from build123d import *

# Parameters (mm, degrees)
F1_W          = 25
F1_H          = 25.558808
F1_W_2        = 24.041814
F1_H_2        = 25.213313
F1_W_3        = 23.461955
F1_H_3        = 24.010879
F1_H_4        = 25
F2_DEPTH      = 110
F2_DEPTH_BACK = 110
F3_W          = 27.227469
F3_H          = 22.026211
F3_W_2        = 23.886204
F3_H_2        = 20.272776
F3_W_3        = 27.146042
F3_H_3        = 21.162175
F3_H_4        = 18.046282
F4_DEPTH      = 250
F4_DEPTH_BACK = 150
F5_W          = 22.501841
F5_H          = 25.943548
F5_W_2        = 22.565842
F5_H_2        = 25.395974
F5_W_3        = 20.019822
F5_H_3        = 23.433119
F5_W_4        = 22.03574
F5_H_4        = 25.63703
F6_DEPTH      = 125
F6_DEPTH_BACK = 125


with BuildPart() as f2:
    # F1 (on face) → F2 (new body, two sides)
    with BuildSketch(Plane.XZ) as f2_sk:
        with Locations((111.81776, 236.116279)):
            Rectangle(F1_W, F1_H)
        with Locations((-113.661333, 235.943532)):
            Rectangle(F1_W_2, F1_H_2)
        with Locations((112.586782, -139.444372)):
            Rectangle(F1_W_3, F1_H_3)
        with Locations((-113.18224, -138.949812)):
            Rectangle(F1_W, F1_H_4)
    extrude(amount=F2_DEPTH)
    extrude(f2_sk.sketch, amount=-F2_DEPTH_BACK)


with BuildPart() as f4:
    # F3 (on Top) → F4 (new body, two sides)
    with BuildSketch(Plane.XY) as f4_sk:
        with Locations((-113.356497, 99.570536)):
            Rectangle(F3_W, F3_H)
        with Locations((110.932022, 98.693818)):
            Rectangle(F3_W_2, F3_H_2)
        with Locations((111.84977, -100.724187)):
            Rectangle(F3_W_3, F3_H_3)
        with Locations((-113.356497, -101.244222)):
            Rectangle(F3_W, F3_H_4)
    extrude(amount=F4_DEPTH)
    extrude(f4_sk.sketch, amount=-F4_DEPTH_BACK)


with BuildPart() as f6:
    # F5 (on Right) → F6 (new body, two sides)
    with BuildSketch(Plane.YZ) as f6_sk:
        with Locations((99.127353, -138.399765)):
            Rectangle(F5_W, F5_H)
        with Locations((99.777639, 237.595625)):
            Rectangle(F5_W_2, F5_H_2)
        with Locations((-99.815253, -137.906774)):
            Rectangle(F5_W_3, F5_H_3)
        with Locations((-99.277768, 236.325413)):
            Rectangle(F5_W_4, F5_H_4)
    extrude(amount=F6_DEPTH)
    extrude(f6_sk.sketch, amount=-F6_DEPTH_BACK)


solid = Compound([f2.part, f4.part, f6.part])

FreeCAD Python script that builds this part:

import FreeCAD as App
import Part
import Sketcher

V = App.Vector

doc = App.newDocument("Part")
body = doc.addObject("PartDesign::Body", "Body")
body.AllowCompound = True

# Sketch on XZ plane
sketch1 = body.newObject("Sketcher::SketchObject", "Sketch")
sketch1.AttachmentSupport = (doc.getObject("XZ_Plane"), [""])
sketch1.MapMode = "FlatFace"
sketch1.addGeometry(Part.LineSegment(V(99, 249, 0), V(99, 223, 0)), False)
sketch1.addGeometry(Part.LineSegment(V(99, 223, 0), V(124, 223, 0)), False)
sketch1.addGeometry(Part.LineSegment(V(124, 223, 0), V(124, 249, 0)), False)
sketch1.addGeometry(Part.LineSegment(V(124, 249, 0), V(99, 249, 0)), False)
sketch1.addGeometry(Part.LineSegment(V(-126, 249, 0), V(-126, 223, 0)), False)
sketch1.addGeometry(Part.LineSegment(V(-126, 223, 0), V(-102, 223, 0)), False)
sketch1.addGeometry(Part.LineSegment(V(-102, 223, 0), V(-102, 249, 0)), False)
sketch1.addGeometry(Part.LineSegment(V(-102, 249, 0), V(-126, 249, 0)), False)
sketch1.addGeometry(Part.LineSegment(V(101, -127, 0), V(101, -151, 0)), False)
sketch1.addGeometry(Part.LineSegment(V(101, -151, 0), V(124, -151, 0)), False)
sketch1.addGeometry(Part.LineSegment(V(124, -151, 0), V(124, -127, 0)), False)
sketch1.addGeometry(Part.LineSegment(V(124, -127, 0), V(101, -127, 0)), False)
sketch1.addGeometry(Part.LineSegment(V(-126, -126, 0), V(-126, -151, 0)), False)
sketch1.addGeometry(Part.LineSegment(V(-126, -151, 0), V(-101, -151, 0)), False)
sketch1.addGeometry(Part.LineSegment(V(-101, -151, 0), V(-101, -126, 0)), False)
sketch1.addGeometry(Part.LineSegment(V(-101, -126, 0), V(-126, -126, 0)), False)
sketch1.addConstraint(Sketcher.Constraint("Coincident", 0, 2, 1, 1))
sketch1.addConstraint(Sketcher.Constraint("Coincident", 1, 2, 2, 1))
sketch1.addConstraint(Sketcher.Constraint("Coincident", 2, 2, 3, 1))
sketch1.addConstraint(Sketcher.Constraint("Coincident", 3, 2, 0, 1))
sketch1.addConstraint(Sketcher.Constraint("Coincident", 4, 2, 5, 1))
sketch1.addConstraint(Sketcher.Constraint("Coincident", 5, 2, 6, 1))
sketch1.addConstraint(Sketcher.Constraint("Coincident", 6, 2, 7, 1))
sketch1.addConstraint(Sketcher.Constraint("Coincident", 7, 2, 4, 1))
sketch1.addConstraint(Sketcher.Constraint("Coincident", 8, 2, 9, 1))
sketch1.addConstraint(Sketcher.Constraint("Coincident", 9, 2, 10, 1))
sketch1.addConstraint(Sketcher.Constraint("Coincident", 10, 2, 11, 1))
sketch1.addConstraint(Sketcher.Constraint("Coincident", 11, 2, 8, 1))
sketch1.addConstraint(Sketcher.Constraint("Coincident", 12, 2, 13, 1))
sketch1.addConstraint(Sketcher.Constraint("Coincident", 13, 2, 14, 1))
sketch1.addConstraint(Sketcher.Constraint("Coincident", 14, 2, 15, 1))
sketch1.addConstraint(Sketcher.Constraint("Coincident", 15, 2, 12, 1))
sketch1.addConstraint(Sketcher.Constraint("Vertical", 0))
sketch1.addConstraint(Sketcher.Constraint("Horizontal", 1))
sketch1.addConstraint(Sketcher.Constraint("Vertical", 2))
sketch1.addConstraint(Sketcher.Constraint("Horizontal", 3))
sketch1.addConstraint(Sketcher.Constraint("Vertical", 4))
sketch1.addConstraint(Sketcher.Constraint("Horizontal", 5))
sketch1.addConstraint(Sketcher.Constraint("Vertical", 6))
sketch1.addConstraint(Sketcher.Constraint("Horizontal", 7))
sketch1.addConstraint(Sketcher.Constraint("Vertical", 8))
sketch1.addConstraint(Sketcher.Constraint("Horizontal", 9))
sketch1.addConstraint(Sketcher.Constraint("Vertical", 10))
sketch1.addConstraint(Sketcher.Constraint("Horizontal", 11))
sketch1.addConstraint(Sketcher.Constraint("Vertical", 12))
sketch1.addConstraint(Sketcher.Constraint("Horizontal", 13))
sketch1.addConstraint(Sketcher.Constraint("Vertical", 14))
sketch1.addConstraint(Sketcher.Constraint("Horizontal", 15))
sketch1.addConstraint(Sketcher.Constraint("Horizontal", 1, 2, 4, 2))
sketch1.addConstraint(Sketcher.Constraint("Horizontal", 9, 2, 12, 2))
sketch1.addConstraint(Sketcher.Constraint("Vertical", 2, 2, 9, 2))
sketch1.addConstraint(Sketcher.Constraint("Vertical", 7, 2, 12, 2))
sketch1.addConstraint(Sketcher.Constraint("Equal", 3, 13))
sketch1.addConstraint(Sketcher.Constraint("Equal", 15, 12))
sketch1.addConstraint(Sketcher.Constraint("DistanceX", 1, 1, 1, 2, 25.0))
sketch1.addConstraint(Sketcher.Constraint("DistanceX", 4, 2, 0, 2, 225.0))
sketch1.addConstraint(Sketcher.Constraint("DistanceY", 8, 2, 8, 1, 24.010879))
sketch1.addConstraint(Sketcher.Constraint("DistanceX", 5, 1, 5, 2, 24.041814))
sketch1.addConstraint(Sketcher.Constraint("DistanceX", 9, 1, 9, 2, 23.461955))
sketch1.addConstraint(Sketcher.Constraint("DistanceY", 0, 2, 0, 1, 25.558808))
sketch1.addConstraint(Sketcher.Constraint("DistanceY", 4, 2, 4, 1, 25.213313))
sketch1.addConstraint(Sketcher.Constraint("DistanceX", -1, 1, 0, 2, 99.31776))
sketch1.addConstraint(Sketcher.Constraint("DistanceY", -1, 1, 6, 2, 248.550188))
sketch1.addConstraint(Sketcher.Constraint("DistanceY", 8, 2, -1, 1, 151.449812))
pad1 = body.newObject("PartDesign::Pad", "Pad")
pad1.Profile = sketch1
pad1.Type = "TwoLengths"
pad1.Length = 110
pad1.Length2 = 110
body2 = doc.addObject("PartDesign::Body", "Body001")
body2.AllowCompound = True

# Sketch on XY plane
sketch2 = body2.newObject("Sketcher::SketchObject", "Sketch001")
sketch2.AttachmentSupport = (doc.getObject("XY_Plane001"), [""])
sketch2.MapMode = "FlatFace"
sketch2.addGeometry(Part.LineSegment(V(-127, 111, 0), V(-127, 89, 0)), False)
sketch2.addGeometry(Part.LineSegment(V(-127, 89, 0), V(-100, 89, 0)), False)
sketch2.addGeometry(Part.LineSegment(V(-100, 89, 0), V(-100, 111, 0)), False)
sketch2.addGeometry(Part.LineSegment(V(-100, 111, 0), V(-127, 111, 0)), False)
sketch2.addGeometry(Part.LineSegment(V(99, 109, 0), V(99, 89, 0)), False)
sketch2.addGeometry(Part.LineSegment(V(99, 89, 0), V(123, 89, 0)), False)
sketch2.addGeometry(Part.LineSegment(V(123, 89, 0), V(123, 109, 0)), False)
sketch2.addGeometry(Part.LineSegment(V(123, 109, 0), V(99, 109, 0)), False)
sketch2.addGeometry(Part.LineSegment(V(98, -90, 0), V(98, -111, 0)), False)
sketch2.addGeometry(Part.LineSegment(V(98, -111, 0), V(125, -111, 0)), False)
sketch2.addGeometry(Part.LineSegment(V(125, -111, 0), V(125, -90, 0)), False)
sketch2.addGeometry(Part.LineSegment(V(125, -90, 0), V(98, -90, 0)), False)
sketch2.addGeometry(Part.LineSegment(V(-127, -92, 0), V(-127, -110, 0)), False)
sketch2.addGeometry(Part.LineSegment(V(-127, -110, 0), V(-100, -110, 0)), False)
sketch2.addGeometry(Part.LineSegment(V(-100, -110, 0), V(-100, -92, 0)), False)
sketch2.addGeometry(Part.LineSegment(V(-100, -92, 0), V(-127, -92, 0)), False)
sketch2.addConstraint(Sketcher.Constraint("Coincident", 0, 2, 1, 1))
sketch2.addConstraint(Sketcher.Constraint("Coincident", 1, 2, 2, 1))
sketch2.addConstraint(Sketcher.Constraint("Coincident", 2, 2, 3, 1))
sketch2.addConstraint(Sketcher.Constraint("Coincident", 3, 2, 0, 1))
sketch2.addConstraint(Sketcher.Constraint("Coincident", 4, 2, 5, 1))
sketch2.addConstraint(Sketcher.Constraint("Coincident", 5, 2, 6, 1))
sketch2.addConstraint(Sketcher.Constraint("Coincident", 6, 2, 7, 1))
sketch2.addConstraint(Sketcher.Constraint("Coincident", 7, 2, 4, 1))
sketch2.addConstraint(Sketcher.Constraint("Coincident", 8, 2, 9, 1))
sketch2.addConstraint(Sketcher.Constraint("Coincident", 9, 2, 10, 1))
sketch2.addConstraint(Sketcher.Constraint("Coincident", 10, 2, 11, 1))
sketch2.addConstraint(Sketcher.Constraint("Coincident", 11, 2, 8, 1))
sketch2.addConstraint(Sketcher.Constraint("Coincident", 12, 2, 13, 1))
sketch2.addConstraint(Sketcher.Constraint("Coincident", 13, 2, 14, 1))
sketch2.addConstraint(Sketcher.Constraint("Coincident", 14, 2, 15, 1))
sketch2.addConstraint(Sketcher.Constraint("Coincident", 15, 2, 12, 1))
sketch2.addConstraint(Sketcher.Constraint("Vertical", 0))
sketch2.addConstraint(Sketcher.Constraint("Horizontal", 1))
sketch2.addConstraint(Sketcher.Constraint("Vertical", 2))
sketch2.addConstraint(Sketcher.Constraint("Horizontal", 3))
sketch2.addConstraint(Sketcher.Constraint("Vertical", 4))
sketch2.addConstraint(Sketcher.Constraint("Horizontal", 5))
sketch2.addConstraint(Sketcher.Constraint("Vertical", 6))
sketch2.addConstraint(Sketcher.Constraint("Horizontal", 7))
sketch2.addConstraint(Sketcher.Constraint("Vertical", 8))
sketch2.addConstraint(Sketcher.Constraint("Horizontal", 9))
sketch2.addConstraint(Sketcher.Constraint("Vertical", 10))
sketch2.addConstraint(Sketcher.Constraint("Horizontal", 11))
sketch2.addConstraint(Sketcher.Constraint("Vertical", 12))
sketch2.addConstraint(Sketcher.Constraint("Horizontal", 13))
sketch2.addConstraint(Sketcher.Constraint("Vertical", 14))
sketch2.addConstraint(Sketcher.Constraint("Horizontal", 15))
sketch2.addConstraint(Sketcher.Constraint("Horizontal", 1, 2, 4, 2))
sketch2.addConstraint(Sketcher.Constraint("Vertical", 3, 2, 12, 2))
sketch2.addConstraint(Sketcher.Constraint("Vertical", 2, 2, 13, 2))
sketch2.addConstraint(Sketcher.Constraint("DistanceX", 1, 1, 1, 2, 27.227469))
sketch2.addConstraint(Sketcher.Constraint("DistanceY", 0, 2, 0, 1, 22.026211))
sketch2.addConstraint(Sketcher.Constraint("DistanceY", 10, 2, -1, 1, 90.1431))
sketch2.addConstraint(Sketcher.Constraint("DistanceX", 5, 1, 5, 2, 23.886204))
sketch2.addConstraint(Sketcher.Constraint("DistanceX", 9, 1, 9, 2, 27.146042))
sketch2.addConstraint(Sketcher.Constraint("DistanceY", 4, 2, 4, 1, 20.272776))
sketch2.addConstraint(Sketcher.Constraint("DistanceY", 8, 2, 8, 1, 21.162175))
sketch2.addConstraint(Sketcher.Constraint("DistanceY", 12, 2, 12, 1, 18.046282))
sketch2.addConstraint(Sketcher.Constraint("DistanceX", 0, 2, -1, 1, 126.970231))
sketch2.addConstraint(Sketcher.Constraint("DistanceY", -1, 1, 0, 2, 88.55743))
sketch2.addConstraint(Sketcher.Constraint("DistanceX", -1, 1, 4, 2, 98.98892))
sketch2.addConstraint(Sketcher.Constraint("DistanceX", -1, 1, 8, 2, 98.276749))
sketch2.addConstraint(Sketcher.Constraint("DistanceY", 14, 2, -1, 1, 92.221081))
pad2 = body2.newObject("PartDesign::Pad", "Pad001")
pad2.Profile = sketch2
pad2.Type = "TwoLengths"
pad2.Length = 250
pad2.Length2 = 150
body3 = doc.addObject("PartDesign::Body", "Body002")
body3.AllowCompound = True

# Sketch on YZ plane
sketch3 = body3.newObject("Sketcher::SketchObject", "Sketch002")
sketch3.AttachmentSupport = (doc.getObject("YZ_Plane002"), [""])
sketch3.MapMode = "FlatFace"
sketch3.addGeometry(Part.LineSegment(V(88, -125, 0), V(88, -151, 0)), False)
sketch3.addGeometry(Part.LineSegment(V(88, -151, 0), V(110, -151, 0)), False)
sketch3.addGeometry(Part.LineSegment(V(110, -151, 0), V(110, -125, 0)), False)
sketch3.addGeometry(Part.LineSegment(V(110, -125, 0), V(88, -125, 0)), False)
sketch3.addGeometry(Part.LineSegment(V(88, 250, 0), V(88, 225, 0)), False)
sketch3.addGeometry(Part.LineSegment(V(88, 225, 0), V(111, 225, 0)), False)
sketch3.addGeometry(Part.LineSegment(V(111, 225, 0), V(111, 250, 0)), False)
sketch3.addGeometry(Part.LineSegment(V(111, 250, 0), V(88, 250, 0)), False)
sketch3.addGeometry(Part.LineSegment(V(-110, -126, 0), V(-110, -150, 0)), False)
sketch3.addGeometry(Part.LineSegment(V(-110, -150, 0), V(-90, -150, 0)), False)
sketch3.addGeometry(Part.LineSegment(V(-90, -150, 0), V(-90, -126, 0)), False)
sketch3.addGeometry(Part.LineSegment(V(-90, -126, 0), V(-110, -126, 0)), False)
sketch3.addGeometry(Part.LineSegment(V(-110, 249, 0), V(-110, 224, 0)), False)
sketch3.addGeometry(Part.LineSegment(V(-110, 224, 0), V(-88, 224, 0)), False)
sketch3.addGeometry(Part.LineSegment(V(-88, 224, 0), V(-88, 249, 0)), False)
sketch3.addGeometry(Part.LineSegment(V(-88, 249, 0), V(-110, 249, 0)), False)
sketch3.addConstraint(Sketcher.Constraint("Coincident", 0, 2, 1, 1))
sketch3.addConstraint(Sketcher.Constraint("Coincident", 1, 2, 2, 1))
sketch3.addConstraint(Sketcher.Constraint("Coincident", 2, 2, 3, 1))
sketch3.addConstraint(Sketcher.Constraint("Coincident", 3, 2, 0, 1))
sketch3.addConstraint(Sketcher.Constraint("Coincident", 4, 2, 5, 1))
sketch3.addConstraint(Sketcher.Constraint("Coincident", 5, 2, 6, 1))
sketch3.addConstraint(Sketcher.Constraint("Coincident", 6, 2, 7, 1))
sketch3.addConstraint(Sketcher.Constraint("Coincident", 7, 2, 4, 1))
sketch3.addConstraint(Sketcher.Constraint("Coincident", 8, 2, 9, 1))
sketch3.addConstraint(Sketcher.Constraint("Coincident", 9, 2, 10, 1))
sketch3.addConstraint(Sketcher.Constraint("Coincident", 10, 2, 11, 1))
sketch3.addConstraint(Sketcher.Constraint("Coincident", 11, 2, 8, 1))
sketch3.addConstraint(Sketcher.Constraint("Coincident", 12, 2, 13, 1))
sketch3.addConstraint(Sketcher.Constraint("Coincident", 13, 2, 14, 1))
sketch3.addConstraint(Sketcher.Constraint("Coincident", 14, 2, 15, 1))
sketch3.addConstraint(Sketcher.Constraint("Coincident", 15, 2, 12, 1))
sketch3.addConstraint(Sketcher.Constraint("Vertical", 0))
sketch3.addConstraint(Sketcher.Constraint("Horizontal", 1))
sketch3.addConstraint(Sketcher.Constraint("Vertical", 2))
sketch3.addConstraint(Sketcher.Constraint("Horizontal", 3))
sketch3.addConstraint(Sketcher.Constraint("Vertical", 4))
sketch3.addConstraint(Sketcher.Constraint("Horizontal", 5))
sketch3.addConstraint(Sketcher.Constraint("Vertical", 6))
sketch3.addConstraint(Sketcher.Constraint("Horizontal", 7))
sketch3.addConstraint(Sketcher.Constraint("Vertical", 8))
sketch3.addConstraint(Sketcher.Constraint("Horizontal", 9))
sketch3.addConstraint(Sketcher.Constraint("Vertical", 10))
sketch3.addConstraint(Sketcher.Constraint("Horizontal", 11))
sketch3.addConstraint(Sketcher.Constraint("Vertical", 12))
sketch3.addConstraint(Sketcher.Constraint("Horizontal", 13))
sketch3.addConstraint(Sketcher.Constraint("Vertical", 14))
sketch3.addConstraint(Sketcher.Constraint("Horizontal", 15))
sketch3.addConstraint(Sketcher.Constraint("DistanceX", 1, 1, 1, 2, 22.501841))
sketch3.addConstraint(Sketcher.Constraint("DistanceX", 5, 1, 5, 2, 22.565842))
sketch3.addConstraint(Sketcher.Constraint("DistanceX", 13, 1, 13, 2, 22.03574))
sketch3.addConstraint(Sketcher.Constraint("DistanceY", 0, 2, 0, 1, 25.943548))
sketch3.addConstraint(Sketcher.Constraint("DistanceY", 8, 2, 8, 1, 23.433119))
sketch3.addConstraint(Sketcher.Constraint("DistanceY", 12, 2, 12, 1, 25.63703))
sketch3.addConstraint(Sketcher.Constraint("DistanceY", -1, 1, 12, 2, 223.506898))
sketch3.addConstraint(Sketcher.Constraint("DistanceX", 13, 2, -1, 1, 88.259898))
sketch3.addConstraint(Sketcher.Constraint("DistanceX", 12, 2, 5, 2, 221.356198))
sketch3.addConstraint(Sketcher.Constraint("DistanceX", 9, 1, 9, 2, 20.019822))
sketch3.addConstraint(Sketcher.Constraint("DistanceY", 4, 2, 4, 1, 25.395974))
sketch3.addConstraint(Sketcher.Constraint("DistanceY", 0, 2, -1, 1, 151.371539))
sketch3.addConstraint(Sketcher.Constraint("DistanceY", -1, 1, 4, 2, 224.897638))
sketch3.addConstraint(Sketcher.Constraint("DistanceX", 9, 2, -1, 1, 89.805342))
sketch3.addConstraint(Sketcher.Constraint("DistanceY", 8, 2, 4, 2, 374.520971))
sketch3.addConstraint(Sketcher.Constraint("DistanceX", -1, 1, 0, 2, 87.876433))
pad3 = body3.newObject("PartDesign::Pad", "Pad002")
pad3.Profile = sketch3
pad3.Type = "TwoLengths"
pad3.Length = 125
pad3.Length2 = 125

doc.recompute()
